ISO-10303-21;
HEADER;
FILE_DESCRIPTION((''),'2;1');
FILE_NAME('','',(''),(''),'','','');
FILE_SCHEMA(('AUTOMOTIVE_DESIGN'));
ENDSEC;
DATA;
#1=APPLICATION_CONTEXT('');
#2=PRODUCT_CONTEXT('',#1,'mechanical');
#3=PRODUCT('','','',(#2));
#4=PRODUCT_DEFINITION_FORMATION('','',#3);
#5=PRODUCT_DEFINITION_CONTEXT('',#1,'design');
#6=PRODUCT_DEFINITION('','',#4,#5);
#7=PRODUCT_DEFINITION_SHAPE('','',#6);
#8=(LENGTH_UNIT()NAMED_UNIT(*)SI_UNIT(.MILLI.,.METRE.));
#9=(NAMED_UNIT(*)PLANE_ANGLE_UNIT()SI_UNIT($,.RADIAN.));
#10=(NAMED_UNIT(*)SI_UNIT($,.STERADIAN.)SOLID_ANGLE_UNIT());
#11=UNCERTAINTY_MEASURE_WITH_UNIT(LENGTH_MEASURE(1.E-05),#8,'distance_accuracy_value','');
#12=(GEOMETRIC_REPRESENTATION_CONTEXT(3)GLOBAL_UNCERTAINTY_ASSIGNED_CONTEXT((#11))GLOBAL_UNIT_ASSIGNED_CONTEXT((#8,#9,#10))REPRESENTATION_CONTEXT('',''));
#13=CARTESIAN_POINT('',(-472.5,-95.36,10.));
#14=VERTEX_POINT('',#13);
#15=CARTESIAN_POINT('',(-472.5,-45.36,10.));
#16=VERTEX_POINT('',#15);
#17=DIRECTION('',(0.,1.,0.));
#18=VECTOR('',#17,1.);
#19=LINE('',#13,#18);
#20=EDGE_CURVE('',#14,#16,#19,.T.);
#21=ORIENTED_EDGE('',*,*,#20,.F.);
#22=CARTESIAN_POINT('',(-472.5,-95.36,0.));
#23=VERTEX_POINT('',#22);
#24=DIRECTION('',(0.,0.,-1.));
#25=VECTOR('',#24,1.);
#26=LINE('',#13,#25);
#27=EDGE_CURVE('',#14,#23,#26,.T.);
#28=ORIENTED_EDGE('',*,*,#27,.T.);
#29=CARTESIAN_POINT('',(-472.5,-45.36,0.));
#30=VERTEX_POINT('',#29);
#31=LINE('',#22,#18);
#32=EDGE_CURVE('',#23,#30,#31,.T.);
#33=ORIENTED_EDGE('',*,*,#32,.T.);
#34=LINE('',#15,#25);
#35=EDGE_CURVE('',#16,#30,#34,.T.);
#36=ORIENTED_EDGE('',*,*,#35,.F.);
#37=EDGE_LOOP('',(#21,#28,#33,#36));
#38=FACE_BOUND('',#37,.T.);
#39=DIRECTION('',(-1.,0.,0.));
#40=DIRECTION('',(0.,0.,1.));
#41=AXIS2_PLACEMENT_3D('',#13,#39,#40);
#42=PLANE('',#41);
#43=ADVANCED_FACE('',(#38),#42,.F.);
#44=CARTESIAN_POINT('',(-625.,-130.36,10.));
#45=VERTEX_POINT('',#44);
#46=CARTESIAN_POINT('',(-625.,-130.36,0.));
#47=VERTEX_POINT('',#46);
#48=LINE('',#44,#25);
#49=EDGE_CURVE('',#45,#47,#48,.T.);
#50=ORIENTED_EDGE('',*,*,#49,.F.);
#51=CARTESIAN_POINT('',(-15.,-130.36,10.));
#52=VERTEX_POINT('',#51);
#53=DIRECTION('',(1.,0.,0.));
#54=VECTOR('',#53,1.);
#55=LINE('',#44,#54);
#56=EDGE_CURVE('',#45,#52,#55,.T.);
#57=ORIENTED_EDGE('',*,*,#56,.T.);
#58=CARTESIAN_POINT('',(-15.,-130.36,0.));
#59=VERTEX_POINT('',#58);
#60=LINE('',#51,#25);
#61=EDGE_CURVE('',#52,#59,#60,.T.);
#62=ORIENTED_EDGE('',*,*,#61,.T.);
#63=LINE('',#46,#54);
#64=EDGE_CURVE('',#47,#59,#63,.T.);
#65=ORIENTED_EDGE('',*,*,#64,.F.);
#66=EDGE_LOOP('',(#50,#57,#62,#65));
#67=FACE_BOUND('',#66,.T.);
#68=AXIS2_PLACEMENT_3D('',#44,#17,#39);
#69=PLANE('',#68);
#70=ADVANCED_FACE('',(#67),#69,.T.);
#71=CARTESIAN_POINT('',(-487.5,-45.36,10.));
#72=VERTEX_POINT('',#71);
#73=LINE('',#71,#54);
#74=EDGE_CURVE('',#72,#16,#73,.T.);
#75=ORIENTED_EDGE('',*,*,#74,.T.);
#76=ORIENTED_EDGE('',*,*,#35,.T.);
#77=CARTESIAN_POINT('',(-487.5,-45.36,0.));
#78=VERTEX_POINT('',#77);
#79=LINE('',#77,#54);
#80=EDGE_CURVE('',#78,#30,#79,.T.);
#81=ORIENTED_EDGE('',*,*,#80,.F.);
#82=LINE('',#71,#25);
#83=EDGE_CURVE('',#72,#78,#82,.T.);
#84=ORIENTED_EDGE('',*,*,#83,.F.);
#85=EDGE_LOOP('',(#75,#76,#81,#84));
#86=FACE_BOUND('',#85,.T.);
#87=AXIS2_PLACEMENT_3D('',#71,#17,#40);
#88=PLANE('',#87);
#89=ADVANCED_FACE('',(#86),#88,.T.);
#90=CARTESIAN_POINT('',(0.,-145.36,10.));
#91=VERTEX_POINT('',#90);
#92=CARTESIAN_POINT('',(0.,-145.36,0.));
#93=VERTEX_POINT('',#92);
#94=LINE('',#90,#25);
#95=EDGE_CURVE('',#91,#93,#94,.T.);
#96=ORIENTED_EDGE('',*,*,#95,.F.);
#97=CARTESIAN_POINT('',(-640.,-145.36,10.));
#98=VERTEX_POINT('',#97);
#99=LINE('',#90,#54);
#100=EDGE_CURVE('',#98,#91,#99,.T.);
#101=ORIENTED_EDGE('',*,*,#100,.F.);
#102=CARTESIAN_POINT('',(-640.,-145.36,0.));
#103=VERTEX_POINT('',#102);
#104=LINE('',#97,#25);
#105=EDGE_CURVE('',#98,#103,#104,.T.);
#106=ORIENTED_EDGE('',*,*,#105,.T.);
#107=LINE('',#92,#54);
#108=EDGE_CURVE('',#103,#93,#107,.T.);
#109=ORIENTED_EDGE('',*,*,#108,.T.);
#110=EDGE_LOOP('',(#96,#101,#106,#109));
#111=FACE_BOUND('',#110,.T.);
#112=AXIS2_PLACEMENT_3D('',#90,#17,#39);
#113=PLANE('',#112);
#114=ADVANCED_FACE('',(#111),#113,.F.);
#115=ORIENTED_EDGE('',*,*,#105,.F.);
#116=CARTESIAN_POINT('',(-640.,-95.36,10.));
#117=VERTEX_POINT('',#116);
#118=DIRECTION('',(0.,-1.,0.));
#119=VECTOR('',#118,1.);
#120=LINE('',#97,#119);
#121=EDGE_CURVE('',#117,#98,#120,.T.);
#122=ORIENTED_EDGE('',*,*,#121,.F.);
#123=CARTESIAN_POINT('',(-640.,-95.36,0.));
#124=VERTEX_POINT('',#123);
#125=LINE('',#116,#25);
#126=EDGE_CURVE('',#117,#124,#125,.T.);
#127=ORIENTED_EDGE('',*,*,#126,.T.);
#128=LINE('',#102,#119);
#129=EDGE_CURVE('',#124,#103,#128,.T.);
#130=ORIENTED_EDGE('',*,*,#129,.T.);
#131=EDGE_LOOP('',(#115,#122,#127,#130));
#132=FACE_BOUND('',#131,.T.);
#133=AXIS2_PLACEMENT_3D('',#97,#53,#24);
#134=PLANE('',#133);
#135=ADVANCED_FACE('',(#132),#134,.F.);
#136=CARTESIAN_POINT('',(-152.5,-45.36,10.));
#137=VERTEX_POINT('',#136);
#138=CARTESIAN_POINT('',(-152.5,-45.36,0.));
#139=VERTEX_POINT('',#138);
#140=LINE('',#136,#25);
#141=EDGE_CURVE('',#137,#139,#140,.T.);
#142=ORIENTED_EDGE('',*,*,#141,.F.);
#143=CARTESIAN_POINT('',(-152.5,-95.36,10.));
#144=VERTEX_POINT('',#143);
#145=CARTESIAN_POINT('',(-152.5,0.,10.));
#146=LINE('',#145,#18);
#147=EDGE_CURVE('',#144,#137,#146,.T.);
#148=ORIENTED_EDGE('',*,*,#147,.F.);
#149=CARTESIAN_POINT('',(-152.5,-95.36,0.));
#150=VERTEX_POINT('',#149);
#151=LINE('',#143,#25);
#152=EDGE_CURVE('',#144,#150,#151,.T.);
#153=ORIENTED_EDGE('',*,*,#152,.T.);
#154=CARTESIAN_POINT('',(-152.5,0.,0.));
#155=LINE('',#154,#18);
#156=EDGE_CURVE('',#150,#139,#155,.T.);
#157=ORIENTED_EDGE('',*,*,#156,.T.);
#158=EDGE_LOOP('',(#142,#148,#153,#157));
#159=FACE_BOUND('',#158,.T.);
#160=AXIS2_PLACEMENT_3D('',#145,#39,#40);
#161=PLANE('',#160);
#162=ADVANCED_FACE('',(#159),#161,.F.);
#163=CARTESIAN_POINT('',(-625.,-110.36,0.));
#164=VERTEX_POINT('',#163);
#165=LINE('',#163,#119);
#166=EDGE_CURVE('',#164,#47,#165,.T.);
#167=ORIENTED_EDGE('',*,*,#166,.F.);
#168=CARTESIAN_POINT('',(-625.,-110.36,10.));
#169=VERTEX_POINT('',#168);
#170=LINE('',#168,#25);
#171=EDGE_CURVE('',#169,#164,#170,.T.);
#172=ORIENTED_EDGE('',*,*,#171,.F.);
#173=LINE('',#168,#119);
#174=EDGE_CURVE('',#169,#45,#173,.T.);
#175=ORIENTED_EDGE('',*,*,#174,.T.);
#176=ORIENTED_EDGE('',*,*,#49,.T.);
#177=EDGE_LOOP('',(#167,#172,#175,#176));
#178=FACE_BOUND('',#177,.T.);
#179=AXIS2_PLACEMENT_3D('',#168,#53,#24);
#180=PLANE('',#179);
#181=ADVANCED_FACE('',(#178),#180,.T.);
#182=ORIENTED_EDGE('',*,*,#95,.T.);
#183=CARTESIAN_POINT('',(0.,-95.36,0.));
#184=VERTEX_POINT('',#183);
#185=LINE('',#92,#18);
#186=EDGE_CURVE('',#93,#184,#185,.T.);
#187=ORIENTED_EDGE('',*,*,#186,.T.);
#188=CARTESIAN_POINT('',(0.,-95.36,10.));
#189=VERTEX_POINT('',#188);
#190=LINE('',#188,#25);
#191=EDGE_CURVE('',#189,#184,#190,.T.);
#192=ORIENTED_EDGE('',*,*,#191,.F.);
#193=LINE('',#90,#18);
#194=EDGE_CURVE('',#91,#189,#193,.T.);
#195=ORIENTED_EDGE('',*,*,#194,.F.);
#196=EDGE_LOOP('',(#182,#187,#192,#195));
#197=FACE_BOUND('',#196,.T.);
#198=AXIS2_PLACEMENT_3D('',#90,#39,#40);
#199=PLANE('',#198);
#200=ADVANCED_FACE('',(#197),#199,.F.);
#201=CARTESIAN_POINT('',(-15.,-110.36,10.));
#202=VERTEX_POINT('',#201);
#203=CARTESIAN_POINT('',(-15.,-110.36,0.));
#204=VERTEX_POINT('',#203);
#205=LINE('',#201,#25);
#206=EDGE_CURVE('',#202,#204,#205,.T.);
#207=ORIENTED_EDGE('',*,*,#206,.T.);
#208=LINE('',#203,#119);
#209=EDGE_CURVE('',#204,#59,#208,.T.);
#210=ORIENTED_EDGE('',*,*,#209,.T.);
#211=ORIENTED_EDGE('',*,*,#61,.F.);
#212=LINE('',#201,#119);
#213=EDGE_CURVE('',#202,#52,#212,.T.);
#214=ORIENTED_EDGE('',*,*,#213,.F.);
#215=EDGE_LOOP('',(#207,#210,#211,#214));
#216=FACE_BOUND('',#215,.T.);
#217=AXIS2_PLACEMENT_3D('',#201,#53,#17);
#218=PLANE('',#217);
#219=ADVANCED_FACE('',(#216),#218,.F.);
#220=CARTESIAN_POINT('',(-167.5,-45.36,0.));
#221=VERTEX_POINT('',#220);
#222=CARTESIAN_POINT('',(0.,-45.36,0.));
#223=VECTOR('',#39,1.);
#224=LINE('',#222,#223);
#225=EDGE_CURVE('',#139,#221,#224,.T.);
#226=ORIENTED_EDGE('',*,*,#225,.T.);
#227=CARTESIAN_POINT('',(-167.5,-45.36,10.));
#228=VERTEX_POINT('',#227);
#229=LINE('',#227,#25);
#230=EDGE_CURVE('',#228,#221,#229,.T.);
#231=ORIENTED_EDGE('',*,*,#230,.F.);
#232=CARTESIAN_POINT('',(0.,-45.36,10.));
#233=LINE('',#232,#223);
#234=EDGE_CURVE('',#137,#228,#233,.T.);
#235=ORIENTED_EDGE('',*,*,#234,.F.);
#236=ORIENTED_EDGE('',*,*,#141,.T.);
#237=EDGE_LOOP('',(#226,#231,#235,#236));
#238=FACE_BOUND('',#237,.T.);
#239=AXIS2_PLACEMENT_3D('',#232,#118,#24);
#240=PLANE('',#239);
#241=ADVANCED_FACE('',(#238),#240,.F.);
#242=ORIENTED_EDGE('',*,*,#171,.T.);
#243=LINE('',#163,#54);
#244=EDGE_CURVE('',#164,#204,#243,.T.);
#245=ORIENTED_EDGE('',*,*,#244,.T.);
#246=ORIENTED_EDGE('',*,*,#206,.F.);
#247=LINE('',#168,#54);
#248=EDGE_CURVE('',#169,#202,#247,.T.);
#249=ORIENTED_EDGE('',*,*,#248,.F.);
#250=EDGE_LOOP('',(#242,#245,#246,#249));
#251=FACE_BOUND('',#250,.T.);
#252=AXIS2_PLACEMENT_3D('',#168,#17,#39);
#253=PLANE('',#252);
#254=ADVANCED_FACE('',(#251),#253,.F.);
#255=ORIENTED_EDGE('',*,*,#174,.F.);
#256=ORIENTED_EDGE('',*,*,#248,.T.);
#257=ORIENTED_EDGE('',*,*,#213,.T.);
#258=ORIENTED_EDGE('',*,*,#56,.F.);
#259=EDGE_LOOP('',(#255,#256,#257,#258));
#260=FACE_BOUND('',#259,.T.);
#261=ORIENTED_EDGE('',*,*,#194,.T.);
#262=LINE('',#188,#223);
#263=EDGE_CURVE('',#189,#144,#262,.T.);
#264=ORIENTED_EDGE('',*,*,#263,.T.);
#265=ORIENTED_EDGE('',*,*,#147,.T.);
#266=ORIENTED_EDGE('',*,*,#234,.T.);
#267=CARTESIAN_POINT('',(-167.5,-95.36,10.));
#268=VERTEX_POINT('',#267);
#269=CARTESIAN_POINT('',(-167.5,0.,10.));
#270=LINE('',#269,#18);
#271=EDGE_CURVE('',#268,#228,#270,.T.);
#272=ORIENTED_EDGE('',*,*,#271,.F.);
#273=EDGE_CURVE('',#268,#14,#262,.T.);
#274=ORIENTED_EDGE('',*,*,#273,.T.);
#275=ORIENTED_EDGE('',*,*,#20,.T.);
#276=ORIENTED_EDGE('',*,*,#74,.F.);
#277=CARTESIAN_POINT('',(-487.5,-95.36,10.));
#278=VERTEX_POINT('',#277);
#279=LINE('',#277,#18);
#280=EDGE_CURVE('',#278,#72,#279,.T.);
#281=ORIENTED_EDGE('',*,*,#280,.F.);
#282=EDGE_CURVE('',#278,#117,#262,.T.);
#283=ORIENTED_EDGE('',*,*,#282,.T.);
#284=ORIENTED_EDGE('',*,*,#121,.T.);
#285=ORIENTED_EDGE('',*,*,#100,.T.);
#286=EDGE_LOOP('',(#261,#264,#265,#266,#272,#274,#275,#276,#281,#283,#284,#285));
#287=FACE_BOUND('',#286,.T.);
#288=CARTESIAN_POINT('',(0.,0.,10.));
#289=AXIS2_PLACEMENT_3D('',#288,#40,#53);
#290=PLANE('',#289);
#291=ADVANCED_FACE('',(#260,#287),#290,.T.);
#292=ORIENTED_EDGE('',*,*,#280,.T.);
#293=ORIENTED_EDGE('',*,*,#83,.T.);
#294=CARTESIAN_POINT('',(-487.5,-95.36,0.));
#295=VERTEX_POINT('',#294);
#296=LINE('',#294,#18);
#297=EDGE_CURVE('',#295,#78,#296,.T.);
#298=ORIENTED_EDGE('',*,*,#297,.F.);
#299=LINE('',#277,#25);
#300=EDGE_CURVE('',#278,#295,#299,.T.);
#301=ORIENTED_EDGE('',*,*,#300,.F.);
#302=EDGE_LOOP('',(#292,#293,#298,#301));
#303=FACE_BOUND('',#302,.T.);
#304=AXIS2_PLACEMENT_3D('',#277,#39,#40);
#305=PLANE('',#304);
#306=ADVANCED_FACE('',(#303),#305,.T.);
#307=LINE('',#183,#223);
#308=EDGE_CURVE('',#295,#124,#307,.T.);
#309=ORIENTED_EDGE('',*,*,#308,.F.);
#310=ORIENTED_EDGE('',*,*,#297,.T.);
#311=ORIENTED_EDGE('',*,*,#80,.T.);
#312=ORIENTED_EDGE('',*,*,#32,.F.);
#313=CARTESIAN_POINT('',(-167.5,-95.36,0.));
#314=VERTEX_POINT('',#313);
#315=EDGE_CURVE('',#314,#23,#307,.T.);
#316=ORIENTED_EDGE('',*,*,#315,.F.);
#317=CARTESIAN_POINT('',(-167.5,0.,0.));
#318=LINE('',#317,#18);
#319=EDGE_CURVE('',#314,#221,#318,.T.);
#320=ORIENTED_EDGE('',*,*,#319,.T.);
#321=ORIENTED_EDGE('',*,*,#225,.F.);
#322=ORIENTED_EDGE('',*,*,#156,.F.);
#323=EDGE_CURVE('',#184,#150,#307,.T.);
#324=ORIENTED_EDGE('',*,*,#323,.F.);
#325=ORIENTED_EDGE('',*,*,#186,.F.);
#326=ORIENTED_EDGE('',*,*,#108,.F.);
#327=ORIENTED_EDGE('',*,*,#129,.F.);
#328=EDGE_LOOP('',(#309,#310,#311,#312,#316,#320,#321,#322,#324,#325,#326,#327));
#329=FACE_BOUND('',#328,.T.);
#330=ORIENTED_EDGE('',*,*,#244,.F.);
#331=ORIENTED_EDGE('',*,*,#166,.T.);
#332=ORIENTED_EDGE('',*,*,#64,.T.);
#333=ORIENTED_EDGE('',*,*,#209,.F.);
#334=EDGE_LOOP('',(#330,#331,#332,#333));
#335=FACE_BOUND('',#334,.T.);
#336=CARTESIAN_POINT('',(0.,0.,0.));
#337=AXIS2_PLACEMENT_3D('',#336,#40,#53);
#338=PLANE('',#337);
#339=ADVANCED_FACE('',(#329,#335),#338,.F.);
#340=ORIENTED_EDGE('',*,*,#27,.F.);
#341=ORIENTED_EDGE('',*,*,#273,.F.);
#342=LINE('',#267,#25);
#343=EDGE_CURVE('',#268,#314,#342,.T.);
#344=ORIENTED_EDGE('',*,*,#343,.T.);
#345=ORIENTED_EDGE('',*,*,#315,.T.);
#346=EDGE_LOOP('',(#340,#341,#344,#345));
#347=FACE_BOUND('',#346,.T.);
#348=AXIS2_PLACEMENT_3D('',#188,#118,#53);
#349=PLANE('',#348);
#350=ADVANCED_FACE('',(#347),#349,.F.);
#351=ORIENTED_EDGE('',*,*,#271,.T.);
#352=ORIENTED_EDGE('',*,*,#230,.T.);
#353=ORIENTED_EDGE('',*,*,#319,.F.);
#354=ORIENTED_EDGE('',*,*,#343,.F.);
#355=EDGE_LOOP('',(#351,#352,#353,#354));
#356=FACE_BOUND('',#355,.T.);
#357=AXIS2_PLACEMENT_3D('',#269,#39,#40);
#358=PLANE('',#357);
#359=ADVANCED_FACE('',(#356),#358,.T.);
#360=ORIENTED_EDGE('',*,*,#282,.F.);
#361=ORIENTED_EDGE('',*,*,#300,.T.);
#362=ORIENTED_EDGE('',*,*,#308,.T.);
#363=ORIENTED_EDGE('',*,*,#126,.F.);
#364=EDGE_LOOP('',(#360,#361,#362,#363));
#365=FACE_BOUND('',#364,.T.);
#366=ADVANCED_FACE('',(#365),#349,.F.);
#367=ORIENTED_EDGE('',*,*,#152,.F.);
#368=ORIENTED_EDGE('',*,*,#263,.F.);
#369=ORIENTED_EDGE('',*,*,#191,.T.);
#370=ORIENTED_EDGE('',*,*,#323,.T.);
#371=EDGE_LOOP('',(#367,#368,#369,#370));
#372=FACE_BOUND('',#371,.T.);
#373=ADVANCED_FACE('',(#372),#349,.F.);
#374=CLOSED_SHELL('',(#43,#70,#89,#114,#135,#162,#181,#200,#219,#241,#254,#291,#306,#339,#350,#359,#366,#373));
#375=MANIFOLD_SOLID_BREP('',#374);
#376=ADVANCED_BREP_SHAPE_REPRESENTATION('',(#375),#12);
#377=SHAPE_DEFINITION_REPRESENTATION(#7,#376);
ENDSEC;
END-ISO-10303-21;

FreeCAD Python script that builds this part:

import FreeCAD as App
import Part
import Sketcher
from FreeCAD import Vector
Q = App.Units.Quantity


def add_polygon(sketch, points):
    """Adds a closed chain of lines whose ends are joined by coincident constraints."""
    first, n = sketch.GeometryCount, len(points)
    for a, b in zip(points, points[1:] + points[:1]):
        sketch.addGeometry(Part.LineSegment(App.Vector(*a, 0), App.Vector(*b, 0)), False)
    for i in range(n):
        sketch.addConstraint(Sketcher.Constraint("Coincident", first + i, 2, first + (i + 1) % n, 1))

doc = App.newDocument("Part")
body = doc.addObject("PartDesign::Body", "Body")

# Sketch on XY plane
sketch1 = body.newObject("Sketcher::SketchObject", "Sketch")
sketch1.AttachmentSupport = (doc.getObject("XY_Plane"), [""])
sketch1.MapMode = "FlatFace"
add_polygon(sketch1, [(-640, -95), (-640, -145), (0, -145), (0, -95)])  # lines 0-3
sketch1.addConstraint([
    Sketcher.Constraint("Vertical", 0),
    Sketcher.Constraint("Horizontal", 1),
    Sketcher.Constraint("Vertical", 2),
    Sketcher.Constraint("Horizontal", 3),
    Sketcher.Constraint("PointOnObject", 1, 2, -2),
    Sketcher.Constraint("DistanceX", 1, 1, 1, 2, Q("640 mm")),
    Sketcher.Constraint("DistanceY", 0, 2, 0, 1, Q("50 mm")),
    Sketcher.Constraint("DistanceY", 0, 2, -1, 1, Q("145.36 mm")),
])
pad1 = body.newObject("PartDesign::Pad", "Pad")
pad1.Profile = sketch1
pad1.Length = 10

# Sketch on XY plane
sketch2 = body.newObject("Sketcher::SketchObject", "Sketch001")
sketch2.AttachmentSupport = (doc.getObject("XY_Plane"), [""])
sketch2.MapMode = "FlatFace"
add_polygon(sketch2, [(-168, -45), (-168, -95), (-152, -95), (-152, -45)])  # lines 0-3
add_polygon(sketch2, [(-488, -45), (-488, -95), (-472, -95), (-472, -45)])  # lines 4-7
sketch2.addConstraint([
    Sketcher.Constraint("Vertical", 0),
    Sketcher.Constraint("Horizontal", 1),
    Sketcher.Constraint("Vertical", 2),
    Sketcher.Constraint("Horizontal", 3),
    Sketcher.Constraint("Vertical", 4),
    Sketcher.Constraint("Horizontal", 5),
    Sketcher.Constraint("Vertical", 6),
    Sketcher.Constraint("Horizontal", 7),
    Sketcher.Constraint("Horizontal", 1, 2, 4, 2),
    Sketcher.Constraint("Horizontal", 3, 2, 6, 2),
    Sketcher.Constraint("Equal", 3, 5),
    Sketcher.Constraint("DistanceX", 1, 1, 1, 2, Q("15 mm")),
    Sketcher.Constraint("DistanceY", 0, 2, 0, 1, Q("50 mm")),
    Sketcher.Constraint("DistanceX", 4, 2, 0, 2, Q("320 mm")),
    Sketcher.Constraint("DistanceX", 0, 2, -1, 1, Q("167.5 mm")),
    Sketcher.Constraint("DistanceY", 0, 2, -1, 1, Q("95.36 mm")),
])
pad2 = body.newObject("PartDesign::Pad", "Pad001")
pad2.Profile = sketch2
pad2.Length = 10

# Sketch on XY plane
sketch3 = body.newObject("Sketcher::SketchObject", "Sketch002")
sketch3.AttachmentSupport = (doc.getObject("XY_Plane"), [""])
sketch3.MapMode = "FlatFace"
add_polygon(sketch3, [(-15, -110), (-15, -130), (-625, -130), (-625, -110)])  # lines 0-3
sketch3.addConstraint([
    Sketcher.Constraint("Vertical", 0),
    Sketcher.Constraint("Horizontal", 1),
    Sketcher.Constraint("Vertical", 2),
    Sketcher.Constraint("Horizontal", 3),
    Sketcher.Constraint("DistanceX", 1, 2, 1, 1, Q("610 mm")),
    Sketcher.Constraint("DistanceY", 0, 2, 0, 1, Q("20 mm")),
    Sketcher.Constraint("DistanceX", 0, 2, -1, 1, Q("15 mm")),
    Sketcher.Constraint("DistanceY", 0, 2, -1, 1, Q("130.36 mm")),
])
pocket1 = body.newObject("PartDesign::Pocket", "Pocket")
pocket1.Profile = sketch3
pocket1.Length = 10
pocket1.Reversed = True

doc.recompute()
